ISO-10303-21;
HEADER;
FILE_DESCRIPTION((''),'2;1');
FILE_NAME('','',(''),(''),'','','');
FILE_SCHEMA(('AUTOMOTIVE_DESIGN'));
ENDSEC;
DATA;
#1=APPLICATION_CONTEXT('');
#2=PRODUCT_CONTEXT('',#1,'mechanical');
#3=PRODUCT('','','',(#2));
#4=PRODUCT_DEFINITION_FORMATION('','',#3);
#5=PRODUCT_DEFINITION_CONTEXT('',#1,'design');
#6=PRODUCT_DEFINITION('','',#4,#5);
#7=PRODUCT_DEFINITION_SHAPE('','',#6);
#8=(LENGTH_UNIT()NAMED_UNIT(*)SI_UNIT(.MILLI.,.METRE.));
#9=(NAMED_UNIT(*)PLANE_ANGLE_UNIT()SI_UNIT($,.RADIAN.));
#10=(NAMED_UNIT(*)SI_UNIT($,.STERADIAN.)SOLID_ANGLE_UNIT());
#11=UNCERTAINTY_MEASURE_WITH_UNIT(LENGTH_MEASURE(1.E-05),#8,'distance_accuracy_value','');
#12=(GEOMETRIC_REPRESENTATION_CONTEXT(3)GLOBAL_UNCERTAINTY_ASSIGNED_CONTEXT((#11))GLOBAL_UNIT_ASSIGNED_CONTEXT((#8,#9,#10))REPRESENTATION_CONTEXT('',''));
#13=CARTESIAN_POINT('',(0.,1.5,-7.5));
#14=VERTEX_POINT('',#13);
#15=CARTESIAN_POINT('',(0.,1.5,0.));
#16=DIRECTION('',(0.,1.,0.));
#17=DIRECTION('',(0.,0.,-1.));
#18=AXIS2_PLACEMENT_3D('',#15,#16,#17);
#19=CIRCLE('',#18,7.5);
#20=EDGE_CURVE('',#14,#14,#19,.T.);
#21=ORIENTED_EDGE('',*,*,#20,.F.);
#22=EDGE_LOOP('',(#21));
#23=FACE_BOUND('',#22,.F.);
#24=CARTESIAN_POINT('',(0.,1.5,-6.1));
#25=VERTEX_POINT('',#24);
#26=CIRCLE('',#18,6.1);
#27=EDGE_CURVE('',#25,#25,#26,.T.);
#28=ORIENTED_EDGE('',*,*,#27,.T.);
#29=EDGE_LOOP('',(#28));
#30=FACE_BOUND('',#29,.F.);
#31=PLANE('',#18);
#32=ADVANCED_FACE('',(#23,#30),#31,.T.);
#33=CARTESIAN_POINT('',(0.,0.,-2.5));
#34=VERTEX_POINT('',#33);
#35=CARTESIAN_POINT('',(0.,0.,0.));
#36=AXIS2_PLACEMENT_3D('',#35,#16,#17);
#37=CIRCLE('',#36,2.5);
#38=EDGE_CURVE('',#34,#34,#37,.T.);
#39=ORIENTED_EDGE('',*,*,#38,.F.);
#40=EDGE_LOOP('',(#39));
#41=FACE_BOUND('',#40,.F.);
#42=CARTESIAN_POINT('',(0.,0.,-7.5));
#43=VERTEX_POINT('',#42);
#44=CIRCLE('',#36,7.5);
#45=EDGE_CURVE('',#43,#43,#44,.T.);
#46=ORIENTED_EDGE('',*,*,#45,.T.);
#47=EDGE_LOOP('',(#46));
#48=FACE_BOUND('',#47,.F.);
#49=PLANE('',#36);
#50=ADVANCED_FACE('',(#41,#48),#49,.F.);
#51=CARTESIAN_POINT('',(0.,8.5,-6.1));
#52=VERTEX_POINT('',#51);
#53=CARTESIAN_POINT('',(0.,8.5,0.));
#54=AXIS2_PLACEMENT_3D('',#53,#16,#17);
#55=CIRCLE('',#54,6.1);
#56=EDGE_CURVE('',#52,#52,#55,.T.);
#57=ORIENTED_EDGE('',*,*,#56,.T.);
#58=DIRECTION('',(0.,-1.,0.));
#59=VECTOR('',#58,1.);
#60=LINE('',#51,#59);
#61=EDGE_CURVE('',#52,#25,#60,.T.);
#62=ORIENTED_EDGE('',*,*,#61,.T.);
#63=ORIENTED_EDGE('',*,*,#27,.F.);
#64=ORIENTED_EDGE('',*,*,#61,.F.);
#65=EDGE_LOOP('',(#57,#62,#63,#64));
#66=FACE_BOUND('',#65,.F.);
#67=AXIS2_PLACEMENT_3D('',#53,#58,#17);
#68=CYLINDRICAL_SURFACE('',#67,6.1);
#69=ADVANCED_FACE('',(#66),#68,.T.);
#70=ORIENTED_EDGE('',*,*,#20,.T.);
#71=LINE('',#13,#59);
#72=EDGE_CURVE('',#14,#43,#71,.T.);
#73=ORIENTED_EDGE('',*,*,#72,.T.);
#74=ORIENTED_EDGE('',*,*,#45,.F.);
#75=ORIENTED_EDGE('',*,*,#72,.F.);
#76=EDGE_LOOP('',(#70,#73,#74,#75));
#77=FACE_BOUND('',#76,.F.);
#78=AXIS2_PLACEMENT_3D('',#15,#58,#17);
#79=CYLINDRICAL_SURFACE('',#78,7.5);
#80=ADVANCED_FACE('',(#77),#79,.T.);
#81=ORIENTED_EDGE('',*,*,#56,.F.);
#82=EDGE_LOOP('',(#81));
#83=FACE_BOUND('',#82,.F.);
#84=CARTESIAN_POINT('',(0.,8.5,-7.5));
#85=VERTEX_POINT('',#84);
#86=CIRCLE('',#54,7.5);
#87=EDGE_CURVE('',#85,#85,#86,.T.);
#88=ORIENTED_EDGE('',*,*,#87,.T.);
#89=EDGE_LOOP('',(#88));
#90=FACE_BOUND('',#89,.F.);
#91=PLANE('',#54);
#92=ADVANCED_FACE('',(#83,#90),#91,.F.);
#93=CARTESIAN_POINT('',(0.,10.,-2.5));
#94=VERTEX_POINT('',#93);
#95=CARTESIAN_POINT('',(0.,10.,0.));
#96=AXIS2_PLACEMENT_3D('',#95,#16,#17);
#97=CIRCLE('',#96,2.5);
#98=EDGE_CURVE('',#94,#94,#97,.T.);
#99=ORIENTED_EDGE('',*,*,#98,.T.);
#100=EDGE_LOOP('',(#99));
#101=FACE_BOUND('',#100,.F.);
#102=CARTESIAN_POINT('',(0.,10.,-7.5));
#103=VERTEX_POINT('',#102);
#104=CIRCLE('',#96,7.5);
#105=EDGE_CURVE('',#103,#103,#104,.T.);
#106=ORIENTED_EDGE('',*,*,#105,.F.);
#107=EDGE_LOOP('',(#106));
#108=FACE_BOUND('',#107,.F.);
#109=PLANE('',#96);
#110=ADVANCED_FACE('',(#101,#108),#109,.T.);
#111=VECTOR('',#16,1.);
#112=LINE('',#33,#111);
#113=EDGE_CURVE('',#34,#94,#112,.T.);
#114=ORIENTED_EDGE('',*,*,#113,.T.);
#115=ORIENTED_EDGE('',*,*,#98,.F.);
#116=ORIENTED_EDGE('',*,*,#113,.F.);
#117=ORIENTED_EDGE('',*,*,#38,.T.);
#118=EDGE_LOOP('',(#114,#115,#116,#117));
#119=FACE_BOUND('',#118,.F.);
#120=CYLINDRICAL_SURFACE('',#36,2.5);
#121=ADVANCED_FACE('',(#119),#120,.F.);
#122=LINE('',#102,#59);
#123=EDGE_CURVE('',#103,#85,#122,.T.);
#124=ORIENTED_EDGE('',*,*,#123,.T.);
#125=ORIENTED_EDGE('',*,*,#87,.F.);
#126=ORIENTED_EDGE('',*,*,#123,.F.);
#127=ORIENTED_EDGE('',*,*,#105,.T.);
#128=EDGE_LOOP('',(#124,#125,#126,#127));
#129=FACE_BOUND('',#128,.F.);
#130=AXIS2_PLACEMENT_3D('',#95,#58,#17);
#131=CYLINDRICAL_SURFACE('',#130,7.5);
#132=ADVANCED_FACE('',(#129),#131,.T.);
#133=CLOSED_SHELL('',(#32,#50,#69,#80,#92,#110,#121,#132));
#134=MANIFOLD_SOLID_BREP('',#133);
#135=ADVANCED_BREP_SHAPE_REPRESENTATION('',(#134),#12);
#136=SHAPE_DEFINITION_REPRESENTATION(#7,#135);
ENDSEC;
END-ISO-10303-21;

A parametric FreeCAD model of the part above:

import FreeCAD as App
import Part
import Sketcher
Q = App.Units.Quantity


def add_polygon(sketch, points):
    """Adds a closed chain of lines whose ends are joined by coincident constraints."""
    first, n = sketch.GeometryCount, len(points)
    for a, b in zip(points, points[1:] + points[:1]):
        sketch.addGeometry(Part.LineSegment(App.Vector(*a, 0), App.Vector(*b, 0)), False)
    for i in range(n):
        sketch.addConstraint(Sketcher.Constraint("Coincident", first + i, 2, first + (i + 1) % n, 1))

doc = App.newDocument("Part")
params = doc.addObject("Spreadsheet::Sheet", "Params")
for row, (alias, value) in enumerate([
    ("sketch1_width", "7 mm"),
    ("sketch1_height", "5 mm"),
    ("sketch1_width2", "1.5 mm"),
    ("sketch1_height2", "1.4 mm"),
    ("revolution_angle", "360 deg"),
], start=1):
    params.set(f"A{row}", alias)
    params.set(f"B{row}", "=" + value)
    params.setAlias(f"B{row}", alias)

body = doc.addObject("PartDesign::Body", "Body")

# Sketch on YZ plane
sketch1 = body.newObject("Sketcher::SketchObject", "Sketch")
sketch1.AttachmentSupport = (doc.getObject("YZ_Plane"), [""])
sketch1.MapMode = "FlatFace"
add_polygon(sketch1, [(10, -2.5), (0, -2.5), (0, -7.5), (1.5, -7.5), (1.5, -6.1), (8.5, -6.1), (8.5, -7.5), (10, -7.5)])  # lines 0-7
sketch1.addConstraint(Sketcher.Constraint("Horizontal", 0))
sketch1.addConstraint(Sketcher.Constraint("Vertical", 1))
sketch1.addConstraint(Sketcher.Constraint("Horizontal", 2))
sketch1.addConstraint(Sketcher.Constraint("Vertical", 3))
sketch1.addConstraint(Sketcher.Constraint("Horizontal", 4))
sketch1.addConstraint(Sketcher.Constraint("Vertical", 5))
sketch1.addConstraint(Sketcher.Constraint("Horizontal", 6))
sketch1.addConstraint(Sketcher.Constraint("Vertical", 7))
sketch1.addConstraint(Sketcher.Constraint("PointOnObject", 0, 2, -2))
sketch1.addConstraint(Sketcher.Constraint("Horizontal", 2, 2, 5, 2))
sketch1.addConstraint(Sketcher.Constraint("Equal", 2, 6))
sketch1.addConstraint(Sketcher.Constraint("DistanceX", 4, 1, 4, 2, Q("7 mm")))
sketch1.addConstraint(Sketcher.Constraint("DistanceY", 1, 2, 1, 1, Q("5 mm")))
sketch1.addConstraint(Sketcher.Constraint("DistanceX", 2, 1, 2, 2, Q("1.5 mm")))
sketch1.addConstraint(Sketcher.Constraint("DistanceY", 3, 1, 3, 2, Q("1.4 mm")))
sketch1.addConstraint(Sketcher.Constraint("DistanceY", 0, 2, -1, 1, Q("2.5 mm")))
sketch1.setExpression("Constraints[19]", "Params.sketch1_width")
sketch1.setExpression("Constraints[20]", "Params.sketch1_height")
sketch1.setExpression("Constraints[21]", "Params.sketch1_width2")
sketch1.setExpression("Constraints[22]", "Params.sketch1_height2")
revolution = body.newObject("PartDesign::Revolution", "Revolution")
revolution.Profile = sketch1
revolution.ReferenceAxis = (sketch1, ["H_Axis"])
revolution.setExpression("Angle", "Params.revolution_angle")

doc.recompute()
